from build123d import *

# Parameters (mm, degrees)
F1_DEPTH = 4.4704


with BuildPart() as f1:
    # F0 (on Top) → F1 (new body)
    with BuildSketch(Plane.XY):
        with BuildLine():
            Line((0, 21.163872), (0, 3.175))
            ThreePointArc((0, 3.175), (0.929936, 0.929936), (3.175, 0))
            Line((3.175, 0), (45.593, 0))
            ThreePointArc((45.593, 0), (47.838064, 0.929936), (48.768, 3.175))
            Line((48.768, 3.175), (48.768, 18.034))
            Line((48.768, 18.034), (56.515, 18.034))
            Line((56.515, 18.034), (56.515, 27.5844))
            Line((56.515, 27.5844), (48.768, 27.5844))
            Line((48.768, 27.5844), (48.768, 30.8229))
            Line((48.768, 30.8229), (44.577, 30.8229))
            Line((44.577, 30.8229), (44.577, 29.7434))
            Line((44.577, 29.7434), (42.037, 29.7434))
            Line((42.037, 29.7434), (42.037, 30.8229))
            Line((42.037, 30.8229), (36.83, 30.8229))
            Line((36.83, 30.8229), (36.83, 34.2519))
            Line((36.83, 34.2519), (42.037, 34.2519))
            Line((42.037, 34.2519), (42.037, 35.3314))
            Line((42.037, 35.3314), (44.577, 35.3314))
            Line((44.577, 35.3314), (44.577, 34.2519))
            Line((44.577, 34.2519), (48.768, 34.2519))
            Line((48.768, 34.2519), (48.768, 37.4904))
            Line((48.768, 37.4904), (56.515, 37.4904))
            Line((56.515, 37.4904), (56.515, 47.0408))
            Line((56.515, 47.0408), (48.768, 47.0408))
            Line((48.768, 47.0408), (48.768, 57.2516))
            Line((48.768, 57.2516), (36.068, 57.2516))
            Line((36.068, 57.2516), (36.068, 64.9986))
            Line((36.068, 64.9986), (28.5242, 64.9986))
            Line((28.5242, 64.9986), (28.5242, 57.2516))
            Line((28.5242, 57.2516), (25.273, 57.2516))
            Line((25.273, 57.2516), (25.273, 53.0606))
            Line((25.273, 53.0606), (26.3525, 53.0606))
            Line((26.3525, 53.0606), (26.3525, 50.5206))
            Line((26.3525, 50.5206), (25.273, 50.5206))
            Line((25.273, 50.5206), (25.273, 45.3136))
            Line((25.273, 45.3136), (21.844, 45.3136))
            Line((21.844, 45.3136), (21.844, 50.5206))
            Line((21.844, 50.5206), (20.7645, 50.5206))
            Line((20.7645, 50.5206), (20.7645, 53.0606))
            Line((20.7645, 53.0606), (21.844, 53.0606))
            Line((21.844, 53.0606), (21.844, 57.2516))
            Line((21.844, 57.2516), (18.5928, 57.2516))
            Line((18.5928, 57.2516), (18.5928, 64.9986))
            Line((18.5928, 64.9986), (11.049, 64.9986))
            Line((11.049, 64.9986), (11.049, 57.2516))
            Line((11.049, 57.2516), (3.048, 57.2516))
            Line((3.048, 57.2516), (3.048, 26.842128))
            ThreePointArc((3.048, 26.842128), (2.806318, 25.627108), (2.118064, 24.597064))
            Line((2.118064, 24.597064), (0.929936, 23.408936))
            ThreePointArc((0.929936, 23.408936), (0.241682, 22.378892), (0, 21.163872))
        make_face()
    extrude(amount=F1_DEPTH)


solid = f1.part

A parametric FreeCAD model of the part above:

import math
import FreeCAD as App
import Part
import Sketcher

V = App.Vector
Q = App.Units.Quantity

doc = App.newDocument("Part")
body = doc.addObject("PartDesign::Body", "Body")

# Sketch on XY plane
sketch1 = body.newObject("Sketcher::SketchObject", "Sketch")
sketch1.AttachmentSupport = (doc.getObject("XY_Plane"), [""])
sketch1.MapMode = "FlatFace"
sketch1.addGeometry(Part.LineSegment(V(0, 21.2, 0), V(0, 3.2, 0)), False)
sketch1.addGeometry(Part.ArcOfCircle(Part.Circle(V(3.2, 3.2, 0), V(0, 0, 1), 3.2), math.radians(-180), math.radians(-90)), False)
sketch1.addGeometry(Part.LineSegment(V(3.2, 0, 0), V(45.6, 0, 0)), False)
sketch1.addGeometry(Part.ArcOfCircle(Part.Circle(V(45.6, 3.2, 0), V(0, 0, 1), 3.2), math.radians(-90), math.radians(0)), False)
sketch1.addGeometry(Part.LineSegment(V(48.8, 3.2, 0), V(48.8, 18, 0)), False)
sketch1.addGeometry(Part.LineSegment(V(48.8, 18, 0), V(56.5, 18, 0)), False)
sketch1.addGeometry(Part.LineSegment(V(56.5, 18, 0), V(56.5, 27.6, 0)), False)
sketch1.addGeometry(Part.LineSegment(V(56.5, 27.6, 0), V(48.8, 27.6, 0)), False)
sketch1.addGeometry(Part.LineSegment(V(48.8, 27.6, 0), V(48.8, 30.8, 0)), False)
sketch1.addGeometry(Part.LineSegment(V(48.8, 30.8, 0), V(44.6, 30.8, 0)), False)
sketch1.addGeometry(Part.LineSegment(V(44.6, 30.8, 0), V(44.6, 29.7, 0)), False)
sketch1.addGeometry(Part.LineSegment(V(44.6, 29.7, 0), V(42, 29.7, 0)), False)
sketch1.addGeometry(Part.LineSegment(V(42, 29.7, 0), V(42, 30.8, 0)), False)
sketch1.addGeometry(Part.LineSegment(V(42, 30.8, 0), V(36.8, 30.8, 0)), False)
sketch1.addGeometry(Part.LineSegment(V(36.8, 30.8, 0), V(36.8, 34.3, 0)), False)
sketch1.addGeometry(Part.LineSegment(V(36.8, 34.3, 0), V(42, 34.3, 0)), False)
sketch1.addGeometry(Part.LineSegment(V(42, 34.3, 0), V(42, 35.3, 0)), False)
sketch1.addGeometry(Part.LineSegment(V(42, 35.3, 0), V(44.6, 35.3, 0)), False)
sketch1.addGeometry(Part.LineSegment(V(44.6, 35.3, 0), V(44.6, 34.3, 0)), False)
sketch1.addGeometry(Part.LineSegment(V(44.6, 34.3, 0), V(48.8, 34.3, 0)), False)
sketch1.addGeometry(Part.LineSegment(V(48.8, 34.3, 0), V(48.8, 37.5, 0)), False)
sketch1.addGeometry(Part.LineSegment(V(48.8, 37.5, 0), V(56.5, 37.5, 0)), False)
sketch1.addGeometry(Part.LineSegment(V(56.5, 37.5, 0), V(56.5, 47, 0)), False)
sketch1.addGeometry(Part.LineSegment(V(56.5, 47, 0), V(48.8, 47, 0)), False)
sketch1.addGeometry(Part.LineSegment(V(48.8, 47, 0), V(48.8, 57.3, 0)), False)
sketch1.addGeometry(Part.LineSegment(V(48.8, 57.3, 0), V(36.1, 57.3, 0)), False)
sketch1.addGeometry(Part.LineSegment(V(36.1, 57.3, 0), V(36.1, 65, 0)), False)
sketch1.addGeometry(Part.LineSegment(V(36.1, 65, 0), V(28.5, 65, 0)), False)
sketch1.addGeometry(Part.LineSegment(V(28.5, 65, 0), V(28.5, 57.3, 0)), False)
sketch1.addGeometry(Part.LineSegment(V(28.5, 57.3, 0), V(25.3, 57.3, 0)), False)
sketch1.addGeometry(Part.LineSegment(V(25.3, 57.3, 0), V(25.3, 53.1, 0)), False)
sketch1.addGeometry(Part.LineSegment(V(25.3, 53.1, 0), V(26.4, 53.1, 0)), False)
sketch1.addGeometry(Part.LineSegment(V(26.4, 53.1, 0), V(26.4, 50.5, 0)), False)
sketch1.addGeometry(Part.LineSegment(V(26.4, 50.5, 0), V(25.3, 50.5, 0)), False)
sketch1.addGeometry(Part.LineSegment(V(25.3, 50.5, 0), V(25.3, 45.3, 0)), False)
sketch1.addGeometry(Part.LineSegment(V(25.3, 45.3, 0), V(21.8, 45.3, 0)), False)
sketch1.addGeometry(Part.LineSegment(V(21.8, 45.3, 0), V(21.8, 50.5, 0)), False)
sketch1.addGeometry(Part.LineSegment(V(21.8, 50.5, 0), V(20.8, 50.5, 0)), False)
sketch1.addGeometry(Part.LineSegment(V(20.8, 50.5, 0), V(20.8, 53.1, 0)), False)
sketch1.addGeometry(Part.LineSegment(V(20.8, 53.1, 0), V(21.8, 53.1, 0)), False)
sketch1.addGeometry(Part.LineSegment(V(21.8, 53.1, 0), V(21.8, 57.3, 0)), False)
sketch1.addGeometry(Part.LineSegment(V(21.8, 57.3, 0), V(18.6, 57.3, 0)), False)
sketch1.addGeometry(Part.LineSegment(V(18.6, 57.3, 0), V(18.6, 65, 0)), False)
sketch1.addGeometry(Part.LineSegment(V(18.6, 65, 0), V(11, 65, 0)), False)
sketch1.addGeometry(Part.LineSegment(V(11, 65, 0), V(11, 57.3, 0)), False)
sketch1.addGeometry(Part.LineSegment(V(11, 57.3, 0), V(3, 57.3, 0)), False)
sketch1.addGeometry(Part.LineSegment(V(3, 57.3, 0), V(3, 26.8, 0)), False)
sketch1.addGeometry(Part.ArcOfCircle(Part.Circle(V(-0.1, 26.8, 0), V(0, 0, 1), 3.2), math.radians(-45), math.radians(0)), False)
sketch1.addGeometry(Part.LineSegment(V(2.1, 24.6, 0), V(0.9, 23.4, 0)), False)
sketch1.addGeometry(Part.ArcOfCircle(Part.Circle(V(3.2, 21.2, 0), V(0, 0, 1), 3.2), math.radians(135), math.radians(180)), False)
sketch1.addConstraint(Sketcher.Constraint("Tangent", 0, 2, 1, 1))
sketch1.addConstraint(Sketcher.Constraint("Tangent", 1, 2, 2, 1))
sketch1.addConstraint(Sketcher.Constraint("Tangent", 2, 2, 3, 1))
sketch1.addConstraint(Sketcher.Constraint("Tangent", 3, 2, 4, 1))
sketch1.addConstraint(Sketcher.Constraint("Coincident", 4, 2, 5, 1))
sketch1.addConstraint(Sketcher.Constraint("Coincident", 5, 2, 6, 1))
sketch1.addConstraint(Sketcher.Constraint("Coincident", 6, 2, 7, 1))
sketch1.addConstraint(Sketcher.Constraint("Coincident", 7, 2, 8, 1))
sketch1.addConstraint(Sketcher.Constraint("Coincident", 8, 2, 9, 1))
sketch1.addConstraint(Sketcher.Constraint("Coincident", 9, 2, 10, 1))
sketch1.addConstraint(Sketcher.Constraint("Coincident", 10, 2, 11, 1))
sketch1.addConstraint(Sketcher.Constraint("Coincident", 11, 2, 12, 1))
sketch1.addConstraint(Sketcher.Constraint("Coincident", 12, 2, 13, 1))
sketch1.addConstraint(Sketcher.Constraint("Coincident", 13, 2, 14, 1))
sketch1.addConstraint(Sketcher.Constraint("Coincident", 14, 2, 15, 1))
sketch1.addConstraint(Sketcher.Constraint("Coincident", 15, 2, 16, 1))
sketch1.addConstraint(Sketcher.Constraint("Coincident", 16, 2, 17, 1))
sketch1.addConstraint(Sketcher.Constraint("Coincident", 17, 2, 18, 1))
sketch1.addConstraint(Sketcher.Constraint("Coincident", 18, 2, 19, 1))
sketch1.addConstraint(Sketcher.Constraint("Coincident", 19, 2, 20, 1))
sketch1.addConstraint(Sketcher.Constraint("Coincident", 20, 2, 21, 1))
sketch1.addConstraint(Sketcher.Constraint("Coincident", 21, 2, 22, 1))
sketch1.addConstraint(Sketcher.Constraint("Coincident", 22, 2, 23, 1))
sketch1.addConstraint(Sketcher.Constraint("Coincident", 23, 2, 24, 1))
sketch1.addConstraint(Sketcher.Constraint("Coincident", 24, 2, 25, 1))
sketch1.addConstraint(Sketcher.Constraint("Coincident", 25, 2, 26, 1))
sketch1.addConstraint(Sketcher.Constraint("Coincident", 26, 2, 27, 1))
sketch1.addConstraint(Sketcher.Constraint("Coincident", 27, 2, 28, 1))
sketch1.addConstraint(Sketcher.Constraint("Coincident", 28, 2, 29, 1))
sketch1.addConstraint(Sketcher.Constraint("Coincident", 29, 2, 30, 1))
sketch1.addConstraint(Sketcher.Constraint("Coincident", 30, 2, 31, 1))
sketch1.addConstraint(Sketcher.Constraint("Coincident", 31, 2, 32, 1))
sketch1.addConstraint(Sketcher.Constraint("Coincident", 32, 2, 33, 1))
sketch1.addConstraint(Sketcher.Constraint("Coincident", 33, 2, 34, 1))
sketch1.addConstraint(Sketcher.Constraint("Coincident", 34, 2, 35, 1))
sketch1.addConstraint(Sketcher.Constraint("Coincident", 35, 2, 36, 1))
sketch1.addConstraint(Sketcher.Constraint("Coincident", 36, 2, 37, 1))
sketch1.addConstraint(Sketcher.Constraint("Coincident", 37, 2, 38, 1))
sketch1.addConstraint(Sketcher.Constraint("Coincident", 38, 2, 39, 1))
sketch1.addConstraint(Sketcher.Constraint("Coincident", 39, 2, 40, 1))
sketch1.addConstraint(Sketcher.Constraint("Coincident", 40, 2, 41, 1))
sketch1.addConstraint(Sketcher.Constraint("Coincident", 41, 2, 42, 1))
sketch1.addConstraint(Sketcher.Constraint("Coincident", 42, 2, 43, 1))
sketch1.addConstraint(Sketcher.Constraint("Coincident", 43, 2, 44, 1))
sketch1.addConstraint(Sketcher.Constraint("Coincident", 44, 2, 45, 1))
sketch1.addConstraint(Sketcher.Constraint("Coincident", 45, 2, 46, 1))
sketch1.addConstraint(Sketcher.Constraint("Tangent", 46, 2, 47, 2))
sketch1.addConstraint(Sketcher.Constraint("Tangent", 47, 1, 48, 1))
sketch1.addConstraint(Sketcher.Constraint("Tangent", 48, 2, 49, 1))
sketch1.addConstraint(Sketcher.Constraint("Tangent", 49, 2, 0, 1))
sketch1.addConstraint(Sketcher.Constraint("Vertical", 0))
sketch1.addConstraint(Sketcher.Constraint("Horizontal", 2))
sketch1.addConstraint(Sketcher.Constraint("Vertical", 4))
sketch1.addConstraint(Sketcher.Constraint("Horizontal", 5))
sketch1.addConstraint(Sketcher.Constraint("Vertical", 6))
sketch1.addConstraint(Sketcher.Constraint("Horizontal", 7))
sketch1.addConstraint(Sketcher.Constraint("Vertical", 8))
sketch1.addConstraint(Sketcher.Constraint("Horizontal", 9))
sketch1.addConstraint(Sketcher.Constraint("Vertical", 10))
sketch1.addConstraint(Sketcher.Constraint("Horizontal", 11))
sketch1.addConstraint(Sketcher.Constraint("Vertical", 12))
sketch1.addConstraint(Sketcher.Constraint("Horizontal", 13))
sketch1.addConstraint(Sketcher.Constraint("Vertical", 14))
sketch1.addConstraint(Sketcher.Constraint("Horizontal", 15))
sketch1.addConstraint(Sketcher.Constraint("Vertical", 16))
sketch1.addConstraint(Sketcher.Constraint("Horizontal", 17))
sketch1.addConstraint(Sketcher.Constraint("Vertical", 18))
sketch1.addConstraint(Sketcher.Constraint("Horizontal", 19))
sketch1.addConstraint(Sketcher.Constraint("Vertical", 20))
sketch1.addConstraint(Sketcher.Constraint("Horizontal", 21))
sketch1.addConstraint(Sketcher.Constraint("Vertical", 22))
sketch1.addConstraint(Sketcher.Constraint("Horizontal", 23))
sketch1.addConstraint(Sketcher.Constraint("Vertical", 24))
sketch1.addConstraint(Sketcher.Constraint("Horizontal", 25))
sketch1.addConstraint(Sketcher.Constraint("Vertical", 26))
sketch1.addConstraint(Sketcher.Constraint("Horizontal", 27))
sketch1.addConstraint(Sketcher.Constraint("Vertical", 28))
sketch1.addConstraint(Sketcher.Constraint("Horizontal", 29))
sketch1.addConstraint(Sketcher.Constraint("Vertical", 30))
sketch1.addConstraint(Sketcher.Constraint("Horizontal", 31))
sketch1.addConstraint(Sketcher.Constraint("Vertical", 32))
sketch1.addConstraint(Sketcher.Constraint("Horizontal", 33))
sketch1.addConstraint(Sketcher.Constraint("Vertical", 34))
sketch1.addConstraint(Sketcher.Constraint("Horizontal", 35))
sketch1.addConstraint(Sketcher.Constraint("Vertical", 36))
sketch1.addConstraint(Sketcher.Constraint("Horizontal", 37))
sketch1.addConstraint(Sketcher.Constraint("Vertical", 38))
sketch1.addConstraint(Sketcher.Constraint("Horizontal", 39))
sketch1.addConstraint(Sketcher.Constraint("Vertical", 40))
sketch1.addConstraint(Sketcher.Constraint("Horizontal", 41))
sketch1.addConstraint(Sketcher.Constraint("Vertical", 42))
sketch1.addConstraint(Sketcher.Constraint("Horizontal", 43))
sketch1.addConstraint(Sketcher.Constraint("Vertical", 44))
sketch1.addConstraint(Sketcher.Constraint("Horizontal", 45))
sketch1.addConstraint(Sketcher.Constraint("Vertical", 46))
sketch1.addConstraint(Sketcher.Constraint("Equal", 1, 3))
sketch1.addConstraint(Sketcher.Constraint("Equal", 47, 49))
sketch1.addConstraint(Sketcher.Constraint("PointOnObject", 0, 2, -2))
sketch1.addConstraint(Sketcher.Constraint("PointOnObject", 1, 2, -1))
sketch1.addConstraint(Sketcher.Constraint("Horizontal", 9, 2, 12, 2))
sketch1.addConstraint(Sketcher.Constraint("Horizontal", 15, 2, 18, 2))
sketch1.addConstraint(Sketcher.Constraint("Horizontal", 25, 2, 28, 2))
sketch1.addConstraint(Sketcher.Constraint("Horizontal", 33, 2, 36, 2))
sketch1.addConstraint(Sketcher.Constraint("Horizontal", 31, 2, 38, 2))
sketch1.addConstraint(Sketcher.Constraint("Horizontal", 29, 2, 40, 2))
sketch1.addConstraint(Sketcher.Constraint("Horizontal", 27, 2, 42, 2))
sketch1.addConstraint(Sketcher.Constraint("Horizontal", 41, 2, 44, 2))
sketch1.addConstraint(Sketcher.Constraint("Vertical", 4, 2, 7, 2))
sketch1.addConstraint(Sketcher.Constraint("Vertical", 12, 2, 15, 2))
sketch1.addConstraint(Sketcher.Constraint("Vertical", 10, 2, 17, 2))
sketch1.addConstraint(Sketcher.Constraint("Vertical", 8, 2, 19, 2))
sketch1.addConstraint(Sketcher.Constraint("Vertical", 6, 2, 21, 2))
sketch1.addConstraint(Sketcher.Constraint("Vertical", 20, 2, 23, 2))
sketch1.addConstraint(Sketcher.Constraint("Vertical", 30, 2, 33, 2))
sketch1.addConstraint(Sketcher.Constraint("Vertical", 36, 2, 39, 2))
sketch1.addConstraint(Sketcher.Constraint("Equal", 33, 37))
sketch1.addConstraint(Sketcher.Constraint("Equal", 29, 41))
sketch1.addConstraint(Sketcher.Constraint("Equal", 27, 43))
sketch1.addConstraint(Sketcher.Constraint("Equal", 39, 10))
sketch1.addConstraint(Sketcher.Constraint("Equal", 35, 14))
sketch1.addConstraint(Sketcher.Constraint("Equal", 12, 16))
sketch1.addConstraint(Sketcher.Constraint("Equal", 8, 20))
sketch1.addConstraint(Sketcher.Constraint("Equal", 6, 22))
sketch1.addConstraint(Sketcher.Constraint("Equal", 23, 26))
sketch1.addConstraint(Sketcher.Constraint("Equal", 19, 30))
sketch1.addConstraint(Sketcher.Constraint("Equal", 17, 32))
sketch1.addConstraint(Sketcher.Constraint("Equal", 15, 34))
sketch1.addConstraint(Sketcher.Constraint("DistanceX", 11, 2, 11, 1, Q("0.1 in")))
sketch1.addConstraint(Sketcher.Constraint("DistanceX", 25, 2, 25, 1, Q("0.5 in")))
sketch1.addConstraint(Sketcher.Constraint("Angle", 48, Q("-135 deg")))
sketch1.addConstraint(Sketcher.Constraint("Radius", 1, Q("0.125 in")))
sketch1.addConstraint(Sketcher.Constraint("DistanceX", 2, 1, 2, 2, Q("1.67 in")))
sketch1.addConstraint(Sketcher.Constraint("DistanceX", 5, 1, 5, 2, Q("0.305 in")))
sketch1.addConstraint(Sketcher.Constraint("DistanceX", 9, 2, 9, 1, Q("0.165 in")))
sketch1.addConstraint(Sketcher.Constraint("DistanceX", 13, 2, 13, 1, Q("0.205 in")))
sketch1.addConstraint(Sketcher.Constraint("DistanceX", 27, 2, 27, 1, Q("0.297 in")))
sketch1.addConstraint(Sketcher.Constraint("DistanceX", 29, 2, 29, 1, Q("0.128 in")))
sketch1.addConstraint(Sketcher.Constraint("DistanceX", 35, 2, 35, 1, Q("0.135 in")))
sketch1.addConstraint(Sketcher.Constraint("DistanceX", 45, 2, 45, 1, Q("0.315 in")))
sketch1.addConstraint(Sketcher.Constraint("DistanceY", 4, 1, 4, 2, Q("0.585 in")))
sketch1.addConstraint(Sketcher.Constraint("DistanceY", 6, 1, 6, 2, Q("0.376 in")))
sketch1.addConstraint(Sketcher.Constraint("DistanceY", 24, 1, 24, 2, Q("0.402 in")))
sketch1.addConstraint(Sketcher.Constraint("DistanceY", 11, 2, 16, 2, Q("0.22 in")))
sketch1.addConstraint(Sketcher.Constraint("DistanceY", 6, 2, 21, 2, Q("0.39 in")))
sketch1.addConstraint(Sketcher.Constraint("Radius", 47, Q("3.174994 mm")))
sketch1.addConstraint(Sketcher.Constraint("DistanceY", 0, 2, 0, 1, Q("17.988872 mm")))
pad1 = body.newObject("PartDesign::Pad", "Pad")
pad1.Profile = sketch1
pad1.Length = Q("0.176 in")

doc.recompute()
